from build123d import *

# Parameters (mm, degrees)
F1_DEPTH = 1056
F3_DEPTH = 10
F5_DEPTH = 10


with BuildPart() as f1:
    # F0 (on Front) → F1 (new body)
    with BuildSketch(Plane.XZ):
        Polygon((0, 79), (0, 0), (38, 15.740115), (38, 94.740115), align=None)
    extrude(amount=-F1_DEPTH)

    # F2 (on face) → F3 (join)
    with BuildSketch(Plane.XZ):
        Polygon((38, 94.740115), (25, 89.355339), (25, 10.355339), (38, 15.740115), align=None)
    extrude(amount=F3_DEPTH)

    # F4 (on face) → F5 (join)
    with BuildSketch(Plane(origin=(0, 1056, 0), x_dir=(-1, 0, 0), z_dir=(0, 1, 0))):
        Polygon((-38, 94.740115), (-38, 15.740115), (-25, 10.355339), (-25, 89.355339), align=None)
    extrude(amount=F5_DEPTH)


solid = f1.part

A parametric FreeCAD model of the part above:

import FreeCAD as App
import Part
import Sketcher

V = App.Vector
Q = App.Units.Quantity


def add_polygon(sketch, points):
    """Adds a closed chain of lines whose ends are joined by coincident constraints."""
    first, n = sketch.GeometryCount, len(points)
    for a, b in zip(points, points[1:] + points[:1]):
        sketch.addGeometry(Part.LineSegment(App.Vector(*a, 0), App.Vector(*b, 0)), False)
    for i in range(n):
        sketch.addConstraint(Sketcher.Constraint("Coincident", first + i, 2, first + (i + 1) % n, 1))

doc = App.newDocument("Part")
params = doc.addObject("Spreadsheet::Sheet", "Params")
for row, (alias, value) in enumerate([
    ("sketch1_height", "79 mm"),
    ("pad1_length", "1056 mm"),
    ("sketch2_height", "79 mm"),
    ("pad2_length", "10 mm"),
    ("sketch3_height", "79 mm"),
    ("pad3_length", "10 mm"),
], start=1):
    params.set(f"A{row}", alias)
    params.set(f"B{row}", "=" + value)
    params.setAlias(f"B{row}", alias)

body = doc.addObject("PartDesign::Body", "Body")

sketch1 = body.newObject("Sketcher::SketchObject", "Sketch")
sketch1.AttachmentSupport = (doc.getObject("XZ_Plane"), [""])
sketch1.MapMode = "FlatFace"
add_polygon(sketch1, [(0, 79), (0, 0), (38, 15.740115), (38, 94.740115)])
sketch1.addConstraint([
    Sketcher.Constraint("Vertical", 0),
    Sketcher.Constraint("Vertical", 2),
    Sketcher.Constraint("Coincident", 0, 2, -1, 1),
    Sketcher.Constraint("Parallel", 1, 3),
    Sketcher.Constraint("DistanceY", 0, 2, 0, 1, Q("79 mm")),
    Sketcher.Constraint("DistanceX", -1, 1, 1, 2, Q("38 mm")),
    Sketcher.Constraint("Angle", 1, Q("22.5 deg")),
])
sketch1.setExpression("Constraints[8]", "Params.sketch1_height")
pad1 = body.newObject("PartDesign::Pad", "Pad")
pad1.Profile = sketch1
pad1.setExpression("Length", "Params.pad1_length")
pad1.Reversed = True

sketch2 = body.newObject("Sketcher::SketchObject", "Sketch001")
sketch2.AttachmentSupport = (doc.getObject("XZ_Plane"), [""])
sketch2.MapMode = "FlatFace"
add_polygon(sketch2, [(38, 94.740115), (25, 89.355339), (25, 10.355339), (38, 15.740115)])
sketch2.addConstraint([
    Sketcher.Constraint("Vertical", 1),
    Sketcher.Constraint("Vertical", 3),
    Sketcher.Constraint("Parallel", 0, 2),
    Sketcher.Constraint("DistanceY", 1, 2, 1, 1, Q("79 mm")),
    Sketcher.Constraint("DistanceX", -1, 1, 0, 2, Q("25 mm")),
    Sketcher.Constraint("DistanceX", -1, 1, 2, 2, Q("38 mm")),
    Sketcher.Constraint("Angle", 0, Q("-157.500001 deg")),
    Sketcher.Constraint("DistanceY", -1, 1, 0, 2, Q("89.355339 mm")),
])
sketch2.setExpression("Constraints[7]", "Params.sketch2_height")
pad2 = body.newObject("PartDesign::Pad", "Pad001")
pad2.Profile = sketch2
pad2.setExpression("Length", "Params.pad2_length")

sketch3 = body.newObject("Sketcher::SketchObject", "Sketch002")
sketch3.AttachmentSupport = (doc.getObject("XZ_Plane"), [""])
sketch3.MapMode = "FlatFace"
sketch3.AttachmentOffset = App.Placement(V(0, 0, -1056), App.Rotation())
add_polygon(sketch3, [(38, 94.740115), (38, 15.740115), (25, 10.355339), (25, 89.355339)])
sketch3.addConstraint([
    Sketcher.Constraint("Vertical", 0),
    Sketcher.Constraint("Vertical", 2),
    Sketcher.Constraint("Parallel", 1, 3),
    Sketcher.Constraint("DistanceY", 0, 2, 0, 1, Q("79 mm")),
    Sketcher.Constraint("DistanceX", -1, 1, 0, 2, Q("38 mm")),
    Sketcher.Constraint("DistanceX", -1, 1, 1, 2, Q("25 mm")),
    Sketcher.Constraint("Angle", 1, Q("-157.500001 deg")),
    Sketcher.Constraint("DistanceY", -1, 1, 1, 2, Q("10.355339 mm")),
])
sketch3.setExpression("Constraints[7]", "Params.sketch3_height")
pad3 = body.newObject("PartDesign::Pad", "Pad002")
pad3.Profile = sketch3
pad3.setExpression("Length", "Params.pad3_length")
pad3.Reversed = True

doc.recompute()
